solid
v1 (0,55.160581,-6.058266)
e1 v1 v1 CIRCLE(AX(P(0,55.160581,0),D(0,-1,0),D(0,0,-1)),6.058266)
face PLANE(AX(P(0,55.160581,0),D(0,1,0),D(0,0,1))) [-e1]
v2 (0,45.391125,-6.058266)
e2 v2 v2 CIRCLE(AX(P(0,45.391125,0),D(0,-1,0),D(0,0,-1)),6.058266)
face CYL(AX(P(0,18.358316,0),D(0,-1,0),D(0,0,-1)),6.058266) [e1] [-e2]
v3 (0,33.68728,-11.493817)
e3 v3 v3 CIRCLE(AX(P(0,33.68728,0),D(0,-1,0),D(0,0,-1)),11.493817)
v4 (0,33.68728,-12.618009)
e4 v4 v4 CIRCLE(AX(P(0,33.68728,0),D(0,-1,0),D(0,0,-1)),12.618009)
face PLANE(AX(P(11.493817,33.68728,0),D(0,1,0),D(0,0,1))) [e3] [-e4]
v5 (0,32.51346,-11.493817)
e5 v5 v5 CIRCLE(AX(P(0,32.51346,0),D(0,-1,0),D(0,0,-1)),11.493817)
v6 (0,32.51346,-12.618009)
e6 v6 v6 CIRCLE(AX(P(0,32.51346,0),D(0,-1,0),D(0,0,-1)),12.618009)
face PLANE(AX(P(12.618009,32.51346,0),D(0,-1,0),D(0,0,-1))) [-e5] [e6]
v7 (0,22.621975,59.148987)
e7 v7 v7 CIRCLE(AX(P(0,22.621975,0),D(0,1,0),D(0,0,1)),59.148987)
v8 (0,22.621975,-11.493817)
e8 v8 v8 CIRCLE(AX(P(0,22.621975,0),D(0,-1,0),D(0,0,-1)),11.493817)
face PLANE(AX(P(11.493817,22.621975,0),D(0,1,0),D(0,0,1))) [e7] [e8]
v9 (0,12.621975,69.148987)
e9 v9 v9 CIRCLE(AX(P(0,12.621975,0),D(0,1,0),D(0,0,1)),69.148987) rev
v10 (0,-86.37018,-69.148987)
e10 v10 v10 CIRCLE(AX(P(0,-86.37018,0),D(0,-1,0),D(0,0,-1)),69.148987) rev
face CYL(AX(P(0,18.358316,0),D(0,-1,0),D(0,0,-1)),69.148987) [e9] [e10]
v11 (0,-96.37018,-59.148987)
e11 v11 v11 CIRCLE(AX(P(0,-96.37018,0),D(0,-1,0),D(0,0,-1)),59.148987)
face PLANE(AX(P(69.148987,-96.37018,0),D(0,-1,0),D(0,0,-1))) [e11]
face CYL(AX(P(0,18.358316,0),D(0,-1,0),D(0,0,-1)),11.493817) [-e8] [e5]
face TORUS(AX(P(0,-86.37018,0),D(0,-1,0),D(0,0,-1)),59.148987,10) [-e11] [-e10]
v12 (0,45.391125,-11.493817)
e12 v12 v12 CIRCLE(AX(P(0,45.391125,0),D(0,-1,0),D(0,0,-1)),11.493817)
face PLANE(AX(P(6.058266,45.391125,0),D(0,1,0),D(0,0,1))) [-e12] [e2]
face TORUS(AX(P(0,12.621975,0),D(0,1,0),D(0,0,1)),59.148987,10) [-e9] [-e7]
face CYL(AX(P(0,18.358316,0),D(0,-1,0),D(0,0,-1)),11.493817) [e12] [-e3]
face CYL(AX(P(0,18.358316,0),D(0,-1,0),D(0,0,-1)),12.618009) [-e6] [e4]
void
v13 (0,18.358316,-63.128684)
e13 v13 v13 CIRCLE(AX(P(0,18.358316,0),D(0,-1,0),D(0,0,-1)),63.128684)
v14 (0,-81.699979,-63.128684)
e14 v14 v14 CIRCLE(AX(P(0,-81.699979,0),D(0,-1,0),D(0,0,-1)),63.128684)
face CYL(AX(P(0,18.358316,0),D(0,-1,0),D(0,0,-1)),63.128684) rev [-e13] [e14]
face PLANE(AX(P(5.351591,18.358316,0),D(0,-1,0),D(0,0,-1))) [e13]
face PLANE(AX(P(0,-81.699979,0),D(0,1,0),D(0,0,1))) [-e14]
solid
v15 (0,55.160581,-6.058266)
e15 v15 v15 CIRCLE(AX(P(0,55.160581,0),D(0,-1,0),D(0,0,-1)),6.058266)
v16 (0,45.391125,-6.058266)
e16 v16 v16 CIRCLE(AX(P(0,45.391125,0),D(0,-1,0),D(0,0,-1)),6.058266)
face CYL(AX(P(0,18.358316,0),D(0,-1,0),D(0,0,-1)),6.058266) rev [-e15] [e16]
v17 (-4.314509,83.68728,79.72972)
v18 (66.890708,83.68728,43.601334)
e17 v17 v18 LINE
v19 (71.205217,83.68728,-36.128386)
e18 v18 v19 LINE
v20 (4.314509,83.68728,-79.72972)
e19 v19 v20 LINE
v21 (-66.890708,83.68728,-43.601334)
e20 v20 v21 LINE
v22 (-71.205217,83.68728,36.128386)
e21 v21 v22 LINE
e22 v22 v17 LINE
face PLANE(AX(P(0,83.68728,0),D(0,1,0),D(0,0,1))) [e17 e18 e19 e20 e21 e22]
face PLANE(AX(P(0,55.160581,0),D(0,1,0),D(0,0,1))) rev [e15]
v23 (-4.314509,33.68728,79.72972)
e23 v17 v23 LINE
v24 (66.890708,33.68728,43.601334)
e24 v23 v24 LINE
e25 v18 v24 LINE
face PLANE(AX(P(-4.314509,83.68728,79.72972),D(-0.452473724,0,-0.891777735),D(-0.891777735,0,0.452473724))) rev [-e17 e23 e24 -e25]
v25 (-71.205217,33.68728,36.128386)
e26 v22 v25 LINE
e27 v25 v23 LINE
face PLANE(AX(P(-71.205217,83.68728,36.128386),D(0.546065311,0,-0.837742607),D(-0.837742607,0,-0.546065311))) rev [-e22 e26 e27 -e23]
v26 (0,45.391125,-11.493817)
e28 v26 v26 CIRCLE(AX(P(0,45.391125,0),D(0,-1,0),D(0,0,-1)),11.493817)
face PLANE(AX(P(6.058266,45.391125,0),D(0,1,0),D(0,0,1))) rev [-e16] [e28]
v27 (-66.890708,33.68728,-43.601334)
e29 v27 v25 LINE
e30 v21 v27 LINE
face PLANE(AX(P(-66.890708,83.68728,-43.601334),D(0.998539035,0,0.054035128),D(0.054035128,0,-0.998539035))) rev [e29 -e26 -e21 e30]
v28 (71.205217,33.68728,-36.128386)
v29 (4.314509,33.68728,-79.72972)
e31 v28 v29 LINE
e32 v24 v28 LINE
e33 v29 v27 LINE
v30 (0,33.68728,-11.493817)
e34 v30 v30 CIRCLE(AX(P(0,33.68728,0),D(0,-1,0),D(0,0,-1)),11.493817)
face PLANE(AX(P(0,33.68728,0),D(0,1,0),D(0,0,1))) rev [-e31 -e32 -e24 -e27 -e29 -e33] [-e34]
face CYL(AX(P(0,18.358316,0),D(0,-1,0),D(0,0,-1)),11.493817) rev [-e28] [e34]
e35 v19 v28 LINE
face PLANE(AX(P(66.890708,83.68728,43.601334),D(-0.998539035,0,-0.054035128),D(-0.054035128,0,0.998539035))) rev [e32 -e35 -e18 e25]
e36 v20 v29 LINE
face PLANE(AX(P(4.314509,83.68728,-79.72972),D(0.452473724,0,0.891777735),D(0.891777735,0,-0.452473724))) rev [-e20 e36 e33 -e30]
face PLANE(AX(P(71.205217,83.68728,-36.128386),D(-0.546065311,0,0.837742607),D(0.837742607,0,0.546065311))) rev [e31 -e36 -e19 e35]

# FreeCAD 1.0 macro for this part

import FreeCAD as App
import Part
import Sketcher

V = App.Vector


def edges_at(feature, points):
    """Names of the edges that pass closest to the given points."""
    edges = feature.Shape.Edges
    near = lambda p: min(range(len(edges)), key=lambda i: edges[i].distToShape(Part.Vertex(*p))[0])
    return sorted({f"Edge{near(p) + 1}" for p in points})


def add_polygon(sketch, points):
    """Adds a closed chain of lines whose ends are joined by coincident constraints."""
    first, n = sketch.GeometryCount, len(points)
    for a, b in zip(points, points[1:] + points[:1]):
        sketch.addGeometry(Part.LineSegment(App.Vector(*a, 0), App.Vector(*b, 0)), False)
    for i in range(n):
        sketch.addConstraint(Sketcher.Constraint("Coincident", first + i, 2, first + (i + 1) % n, 1))

doc = App.newDocument("Part")
body = doc.addObject("PartDesign::Body", "Body")

sketch1 = body.newObject("Sketcher::SketchObject", "Sketch")
sketch1.AttachmentSupport = (doc.getObject("XY_Plane"), [""])
sketch1.MapMode = "FlatFace"
add_polygon(sketch1, [(6.1, 55.2), (0, 55.2), (0, 18.4), (63.1, 18.4), (63.1, -81.7), (0, -81.7), (0, -96.4), (69.1, -96.4), (69.1, 22.6), (11.5, 22.6), (11.5, 32.5), (12.6, 32.5), (12.6, 33.7), (11.5, 33.7), (11.5, 45.4), (6.1, 45.4)])
sketch1.addConstraint(Sketcher.Constraint("Horizontal", 0))
sketch1.addConstraint(Sketcher.Constraint("Vertical", 1))
sketch1.addConstraint(Sketcher.Constraint("Horizontal", 2))
sketch1.addConstraint(Sketcher.Constraint("Vertical", 3))
sketch1.addConstraint(Sketcher.Constraint("Horizontal", 4))
sketch1.addConstraint(Sketcher.Constraint("Vertical", 5))
sketch1.addConstraint(Sketcher.Constraint("Horizontal", 6))
sketch1.addConstraint(Sketcher.Constraint("Vertical", 7))
sketch1.addConstraint(Sketcher.Constraint("Horizontal", 8))
sketch1.addConstraint(Sketcher.Constraint("Vertical", 9))
sketch1.addConstraint(Sketcher.Constraint("Horizontal", 10))
sketch1.addConstraint(Sketcher.Constraint("Vertical", 11))
sketch1.addConstraint(Sketcher.Constraint("Horizontal", 12))
sketch1.addConstraint(Sketcher.Constraint("Vertical", 13))
sketch1.addConstraint(Sketcher.Constraint("Horizontal", 14))
sketch1.addConstraint(Sketcher.Constraint("Vertical", 15))
sketch1.addConstraint(Sketcher.Constraint("PointOnObject", 0, 2, -2))
sketch1.addConstraint(Sketcher.Constraint("PointOnObject", 4, 2, -2))
sketch1.addConstraint(Sketcher.Constraint("Vertical", 9, 2, 12, 2))
sketch1.addConstraint(Sketcher.Constraint("DistanceY", 5, 2, 5, 1, 14.670201))
sketch1.addConstraint(Sketcher.Constraint("DistanceX", 8, 2, 8, 1, 57.65517))
sketch1.addConstraint(Sketcher.Constraint("DistanceX", 10, 1, 10, 2, 1.124192))
sketch1.addConstraint(Sketcher.Constraint("DistanceX", 14, 2, 14, 1, 5.435551))
sketch1.addConstraint(Sketcher.Constraint("DistanceY", 11, 1, 11, 2, 1.17382))
sketch1.addConstraint(Sketcher.Constraint("DistanceY", 11, 2, 0, 2, 21.473301))
sketch1.addConstraint(Sketcher.Constraint("DistanceX", 0, 2, 0, 1, 6.058266))
sketch1.addConstraint(Sketcher.Constraint("DistanceX", 2, 1, 2, 2, 63.128684))
sketch1.addConstraint(Sketcher.Constraint("DistanceY", 1, 2, 1, 1, 36.802265))
sketch1.addConstraint(Sketcher.Constraint("DistanceY", 3, 2, 3, 1, 100.058295))
sketch1.addConstraint(Sketcher.Constraint("DistanceY", 7, 1, 7, 2, 118.992155))
sketch1.addConstraint(Sketcher.Constraint("DistanceY", 13, 1, 13, 2, 11.703846))
sketch1.addConstraint(Sketcher.Constraint("DistanceY", -1, 1, 0, 2, 55.160581))
revolution = body.newObject("PartDesign::Revolution", "Revolution")
revolution.Profile = sketch1
revolution.ReferenceAxis = (sketch1, ["V_Axis"])
revolution.Angle = 360
doc.recompute()

fillet = body.newObject("PartDesign::Fillet", "Fillet")
fillet.Base = (revolution, edges_at(revolution, [(0, 22.622, 69.149)]))
fillet.Radius = 10
doc.recompute()

fillet2 = body.newObject("PartDesign::Fillet", "Fillet001")
fillet2.Base = (fillet, edges_at(fillet, [(0, -96.37, 69.149)]))
fillet2.Radius = 10
body2 = doc.addObject("PartDesign::Body", "Body001")

sketch2 = body2.newObject("Sketcher::SketchObject", "Sketch001")
sketch2.AttachmentSupport = (doc.getObject("XZ_Plane001"), [""])
sketch2.MapMode = "FlatFace"
sketch2.AttachmentOffset = App.Placement(V(0, 0, -33.68728), App.Rotation())
add_polygon(sketch2, [(71, -36), (4, -80), (-67, -44), (-71, 36), (-4, 80), (67, 44)])
sketch2.addConstraint(Sketcher.Constraint("Symmetric", 0, 2, 3, 2, -1, 1))
sketch2.addConstraint(Sketcher.Constraint("Symmetric", 1, 2, 4, 2, -1, 1))
sketch2.addConstraint(Sketcher.Constraint("Symmetric", 2, 2, 5, 2, -1, 1))
sketch2.addConstraint(Sketcher.Constraint("Equal", 0, 1))
sketch2.addConstraint(Sketcher.Constraint("Equal", 1, 2))
sketch2.addConstraint(Sketcher.Constraint("DistanceX", 1, 2, 3, 2, 62.576199))
sketch2.addConstraint(Sketcher.Constraint("DistanceX", -1, 1, 0, 2, 4.314509))
sketch2.addConstraint(Sketcher.Constraint("DistanceY", 0, 2, -1, 1, 79.72972))
sketch2.addConstraint(Sketcher.Constraint("DistanceX", 2, 2, 1, 2, 4.314509))
pad1 = body2.newObject("PartDesign::Pad", "Pad")
pad1.Profile = sketch2
pad1.Length = 50
pad1.Reversed = True

sketch3 = body2.newObject("Sketcher::SketchObject", "Sketch002")
sketch3.AttachmentSupport = (doc.getObject("XY_Plane001"), [""])
sketch3.MapMode = "FlatFace"
add_polygon(sketch3, [(6.1, 55.2), (0, 55.2), (0, 18.4), (63.1, 18.4), (63.1, -81.7), (0, -81.7), (0, -96.4), (69.1, -96.4), (69.1, 22.6), (11.5, 22.6), (11.5, 32.5), (12.6, 32.5), (12.6, 33.7), (11.5, 33.7), (11.5, 45.4), (6.1, 45.4)])
sketch3.addConstraint(Sketcher.Constraint("Horizontal", 0))
sketch3.addConstraint(Sketcher.Constraint("Vertical", 1))
sketch3.addConstraint(Sketcher.Constraint("Horizontal", 2))
sketch3.addConstraint(Sketcher.Constraint("Vertical", 3))
sketch3.addConstraint(Sketcher.Constraint("Horizontal", 4))
sketch3.addConstraint(Sketcher.Constraint("Vertical", 5))
sketch3.addConstraint(Sketcher.Constraint("Horizontal", 6))
sketch3.addConstraint(Sketcher.Constraint("Vertical", 7))
sketch3.addConstraint(Sketcher.Constraint("Horizontal", 8))
sketch3.addConstraint(Sketcher.Constraint("Vertical", 9))
sketch3.addConstraint(Sketcher.Constraint("Horizontal", 10))
sketch3.addConstraint(Sketcher.Constraint("Vertical", 11))
sketch3.addConstraint(Sketcher.Constraint("Horizontal", 12))
sketch3.addConstraint(Sketcher.Constraint("Vertical", 13))
sketch3.addConstraint(Sketcher.Constraint("Horizontal", 14))
sketch3.addConstraint(Sketcher.Constraint("Vertical", 15))
sketch3.addConstraint(Sketcher.Constraint("PointOnObject", 0, 2, -2))
sketch3.addConstraint(Sketcher.Constraint("PointOnObject", 4, 2, -2))
sketch3.addConstraint(Sketcher.Constraint("Vertical", 9, 2, 12, 2))
sketch3.addConstraint(Sketcher.Constraint("DistanceY", 5, 2, 5, 1, 14.670201))
sketch3.addConstraint(Sketcher.Constraint("DistanceX", 8, 2, 8, 1, 57.65517))
sketch3.addConstraint(Sketcher.Constraint("DistanceX", 10, 1, 10, 2, 1.124192))
sketch3.addConstraint(Sketcher.Constraint("DistanceX", 14, 2, 14, 1, 5.435551))
sketch3.addConstraint(Sketcher.Constraint("DistanceY", 11, 1, 11, 2, 1.17382))
sketch3.addConstraint(Sketcher.Constraint("DistanceY", 11, 2, 0, 2, 21.473301))
sketch3.addConstraint(Sketcher.Constraint("DistanceX", 0, 2, 0, 1, 6.058266))
sketch3.addConstraint(Sketcher.Constraint("DistanceX", 2, 1, 2, 2, 63.128684))
sketch3.addConstraint(Sketcher.Constraint("DistanceY", 1, 2, 1, 1, 36.802265))
sketch3.addConstraint(Sketcher.Constraint("DistanceY", 3, 2, 3, 1, 100.058295))
sketch3.addConstraint(Sketcher.Constraint("DistanceY", 7, 1, 7, 2, 118.992155))
sketch3.addConstraint(Sketcher.Constraint("DistanceY", 13, 1, 13, 2, 11.703846))
sketch3.addConstraint(Sketcher.Constraint("DistanceY", -1, 1, 0, 2, 55.160581))
groove = body2.newObject("PartDesign::Groove", "Groove")
groove.Profile = sketch3
groove.ReferenceAxis = (sketch3, ["V_Axis"])
groove.Angle = 360

doc.recompute()
